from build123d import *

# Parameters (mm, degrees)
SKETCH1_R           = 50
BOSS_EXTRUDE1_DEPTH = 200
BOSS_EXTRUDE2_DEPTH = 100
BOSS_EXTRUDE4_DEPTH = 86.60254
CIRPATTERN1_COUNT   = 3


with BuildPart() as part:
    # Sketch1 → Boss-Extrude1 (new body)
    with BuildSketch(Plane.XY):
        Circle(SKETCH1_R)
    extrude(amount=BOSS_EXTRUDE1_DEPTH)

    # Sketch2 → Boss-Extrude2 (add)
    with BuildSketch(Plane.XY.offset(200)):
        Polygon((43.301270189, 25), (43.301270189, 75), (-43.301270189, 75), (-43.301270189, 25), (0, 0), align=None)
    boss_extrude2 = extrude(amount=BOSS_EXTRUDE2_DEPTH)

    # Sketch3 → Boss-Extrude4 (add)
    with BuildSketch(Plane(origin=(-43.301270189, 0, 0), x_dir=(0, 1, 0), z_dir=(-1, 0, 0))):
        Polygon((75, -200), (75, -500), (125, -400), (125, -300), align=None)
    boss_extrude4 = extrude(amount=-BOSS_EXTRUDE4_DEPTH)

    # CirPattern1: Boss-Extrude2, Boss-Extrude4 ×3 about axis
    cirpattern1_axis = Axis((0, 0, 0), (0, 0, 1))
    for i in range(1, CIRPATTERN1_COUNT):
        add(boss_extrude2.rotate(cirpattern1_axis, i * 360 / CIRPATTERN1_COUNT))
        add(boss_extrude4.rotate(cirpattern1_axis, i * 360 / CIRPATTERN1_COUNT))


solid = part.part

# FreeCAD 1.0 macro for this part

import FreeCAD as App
import Part
import Sketcher

V = App.Vector
Q = App.Units.Quantity

doc = App.newDocument("Part")
params = doc.addObject("Spreadsheet::Sheet", "Params")
for row, (alias, value) in enumerate([
    ("sketch1_diameter", "100 mm"),
    ("pad1_length", "200 mm"),
    ("sketch2_height", "50 mm"),
    ("sketch2_length", "50 mm"),
    ("pad2_length", "100 mm"),
    ("sketch3_height", "300 mm"),
    ("sketch3_height2", "100 mm"),
    ("pad3_length", "86.60254 mm"),
], start=1):
    params.set(f"A{row}", alias)
    params.set(f"B{row}", "=" + value)
    params.setAlias(f"B{row}", alias)

body = doc.addObject("PartDesign::Body", "Body")

# Sketch on XY plane
sketch1 = body.newObject("Sketcher::SketchObject", "Sketch")
sketch1.AttachmentSupport = (doc.getObject("XY_Plane"), [""])
sketch1.MapMode = "FlatFace"
sketch1.addGeometry(Part.Circle(V(0, 0, 0), V(0, 0, 1), 50), False)
sketch1.addConstraint([
    Sketcher.Constraint("Coincident", 0, 3, -1, 1),
    Sketcher.Constraint("Diameter", 0, Q("100 mm")),
])
sketch1.setExpression("Constraints[1]", "Params.sketch1_diameter")
pad1 = body.newObject("PartDesign::Pad", "Pad")
pad1.Profile = sketch1
pad1.setExpression("Length", "Params.pad1_length")

# Sketch on XY plane
sketch2 = body.newObject("Sketcher::SketchObject", "Sketch001")
sketch2.AttachmentSupport = (doc.getObject("XY_Plane"), [""])
sketch2.MapMode = "FlatFace"
sketch2.AttachmentOffset = App.Placement(V(0, 0, 200), App.Rotation())
sketch2.addGeometry([
    Part.LineSegment(V(43, 25, 0), V(43, 75, 0)),  # 0
    Part.LineSegment(V(43, 75, 0), V(-43, 75, 0)),  # 1
    Part.LineSegment(V(-43, 75, 0), V(-43, 25, 0)),  # 2
    Part.LineSegment(V(-43, 25, 0), V(0, 0, 0)),  # 3
    Part.LineSegment(V(0, 0, 0), V(43, 25, 0)),  # 4
], False)
sketch2.addConstraint([
    Sketcher.Constraint("Coincident", 0, 2, 1, 1),
    Sketcher.Constraint("Coincident", 1, 2, 2, 1),
    Sketcher.Constraint("Coincident", 2, 2, 3, 1),
    Sketcher.Constraint("Coincident", 3, 2, 4, 1),
    Sketcher.Constraint("Coincident", 4, 2, 0, 1),
    Sketcher.Constraint("Vertical", 0),
    Sketcher.Constraint("Horizontal", 1),
    Sketcher.Constraint("Vertical", 2),
    Sketcher.Constraint("Coincident", 3, 2, -1, 1),
    Sketcher.Constraint("Symmetric", 2, 2, 4, 2, -2),
    Sketcher.Constraint("DistanceY", 0, 1, 0, 2, Q("50 mm")),
    Sketcher.Constraint("Angle", 3, Q("-30 deg")),
    Sketcher.Constraint("Distance", 3, Q("50 mm")),
])
sketch2.setExpression("Constraints[10]", "Params.sketch2_height")
sketch2.setExpression("Constraints[12]", "Params.sketch2_length")
pad2 = body.newObject("PartDesign::Pad", "Pad001")
pad2.Profile = sketch2
pad2.setExpression("Length", "Params.pad2_length")

# Sketch on YZ plane
sketch3 = body.newObject("Sketcher::SketchObject", "Sketch002")
sketch3.AttachmentSupport = (doc.getObject("YZ_Plane"), [""])
sketch3.MapMode = "FlatFace"
sketch3.AttachmentOffset = App.Placement(V(0, 0, -43.30127), App.Rotation())
sketch3.addGeometry([
    Part.LineSegment(V(75, 200, 0), V(75, 500, 0)),
    Part.LineSegment(V(75, 500, 0), V(125, 400, 0)),
    Part.LineSegment(V(125, 400, 0), V(125, 300, 0)),
    Part.LineSegment(V(125, 300, 0), V(75, 200, 0)),
], False)
sketch3.addConstraint([
    Sketcher.Constraint("Coincident", 0, 2, 1, 1),
    Sketcher.Constraint("Coincident", 1, 2, 2, 1),
    Sketcher.Constraint("Coincident", 2, 2, 3, 1),
    Sketcher.Constraint("Coincident", 3, 2, 0, 1),
    Sketcher.Constraint("Vertical", 0),
    Sketcher.Constraint("Vertical", 2),
    Sketcher.Constraint("Equal", 1, 3),
    Sketcher.Constraint("DistanceY", 0, 1, 0, 2, Q("300 mm")),
    Sketcher.Constraint("DistanceY", 2, 2, 2, 1, Q("100 mm")),
    Sketcher.Constraint("DistanceX", -1, 1, 0, 2, Q("75 mm")),
    Sketcher.Constraint("DistanceY", -1, 1, 0, 2, Q("500 mm")),
    Sketcher.Constraint("DistanceX", -1, 1, 1, 2, Q("125 mm")),
])
sketch3.setExpression("Constraints[7]", "Params.sketch3_height")
sketch3.setExpression("Constraints[8]", "Params.sketch3_height2")
pad3 = body.newObject("PartDesign::Pad", "Pad002")
pad3.Profile = sketch3
pad3.setExpression("Length", "Params.pad3_length")
doc.recompute()

polarpattern = body.newObject("PartDesign::PolarPattern", "PolarPattern")
polarpattern.Originals = [pad2, pad3]
polarpattern.Axis = (doc.getObject("Z_Axis"), [""])
polarpattern.Angle = 360
polarpattern.Occurrences = 3
body.Tip = polarpattern

doc.recompute()
